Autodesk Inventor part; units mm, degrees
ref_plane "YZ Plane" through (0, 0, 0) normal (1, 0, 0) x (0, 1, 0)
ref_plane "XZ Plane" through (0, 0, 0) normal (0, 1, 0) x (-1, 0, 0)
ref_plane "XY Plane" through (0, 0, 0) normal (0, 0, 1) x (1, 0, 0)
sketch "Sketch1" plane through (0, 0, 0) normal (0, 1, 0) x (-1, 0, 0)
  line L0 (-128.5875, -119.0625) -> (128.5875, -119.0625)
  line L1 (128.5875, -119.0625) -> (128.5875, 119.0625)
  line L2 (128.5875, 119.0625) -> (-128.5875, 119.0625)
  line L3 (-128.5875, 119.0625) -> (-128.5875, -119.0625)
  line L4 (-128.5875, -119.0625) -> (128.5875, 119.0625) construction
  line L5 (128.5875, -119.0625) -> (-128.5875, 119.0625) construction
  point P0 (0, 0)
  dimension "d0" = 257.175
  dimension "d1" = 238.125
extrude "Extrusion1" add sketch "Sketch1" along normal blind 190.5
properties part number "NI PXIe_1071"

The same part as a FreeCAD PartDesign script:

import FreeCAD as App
import Part
import Sketcher
from FreeCAD import Vector
Q = App.Units.Quantity

doc = App.newDocument("Part")
body = doc.addObject("PartDesign::Body", "Body")

sketch1 = doc.addObject("Sketcher::SketchObject", "Sketch")
body.addObject(sketch1)
sketch1.AttachmentSupport = (doc.XZ_Plane, [""])
sketch1.MapMode = "FlatFace"
sketch1.addGeometry([
    Part.LineSegment(Vector(128.5875, 119.0625, 0), Vector(128.5875, -119.0625, 0)),
    Part.LineSegment(Vector(128.5875, -119.0625, 0), Vector(-128.5875, -119.0625, 0)),
    Part.LineSegment(Vector(-128.5875, -119.0625, 0), Vector(-128.5875, 119.0625, 0)),
    Part.LineSegment(Vector(-128.5875, 119.0625, 0), Vector(128.5875, 119.0625, 0)),
], False)
sketch1.addConstraint([
    Sketcher.Constraint("Coincident", 0, 2, 1, 1),
    Sketcher.Constraint("Coincident", 1, 2, 2, 1),
    Sketcher.Constraint("Coincident", 2, 2, 3, 1),
    Sketcher.Constraint("Coincident", 3, 2, 0, 1),
    Sketcher.Constraint("Vertical", 0),
    Sketcher.Constraint("Horizontal", 1),
    Sketcher.Constraint("Vertical", 2),
    Sketcher.Constraint("Horizontal", 3),
    Sketcher.Constraint("Symmetric", 0, 2, 2, 2, -1, 1),
    Sketcher.Constraint("DistanceX", 1, 2, 1, 1, Q("10.125 in")),
    Sketcher.Constraint("DistanceY", 0, 2, 0, 1, Q("9.375 in")),
])
pad1 = doc.addObject("PartDesign::Pad", "Pad")
body.addObject(pad1)
pad1.Profile = sketch1
pad1.Length = Q("7.5 in")
pad1.Reversed = True

doc.recompute()
